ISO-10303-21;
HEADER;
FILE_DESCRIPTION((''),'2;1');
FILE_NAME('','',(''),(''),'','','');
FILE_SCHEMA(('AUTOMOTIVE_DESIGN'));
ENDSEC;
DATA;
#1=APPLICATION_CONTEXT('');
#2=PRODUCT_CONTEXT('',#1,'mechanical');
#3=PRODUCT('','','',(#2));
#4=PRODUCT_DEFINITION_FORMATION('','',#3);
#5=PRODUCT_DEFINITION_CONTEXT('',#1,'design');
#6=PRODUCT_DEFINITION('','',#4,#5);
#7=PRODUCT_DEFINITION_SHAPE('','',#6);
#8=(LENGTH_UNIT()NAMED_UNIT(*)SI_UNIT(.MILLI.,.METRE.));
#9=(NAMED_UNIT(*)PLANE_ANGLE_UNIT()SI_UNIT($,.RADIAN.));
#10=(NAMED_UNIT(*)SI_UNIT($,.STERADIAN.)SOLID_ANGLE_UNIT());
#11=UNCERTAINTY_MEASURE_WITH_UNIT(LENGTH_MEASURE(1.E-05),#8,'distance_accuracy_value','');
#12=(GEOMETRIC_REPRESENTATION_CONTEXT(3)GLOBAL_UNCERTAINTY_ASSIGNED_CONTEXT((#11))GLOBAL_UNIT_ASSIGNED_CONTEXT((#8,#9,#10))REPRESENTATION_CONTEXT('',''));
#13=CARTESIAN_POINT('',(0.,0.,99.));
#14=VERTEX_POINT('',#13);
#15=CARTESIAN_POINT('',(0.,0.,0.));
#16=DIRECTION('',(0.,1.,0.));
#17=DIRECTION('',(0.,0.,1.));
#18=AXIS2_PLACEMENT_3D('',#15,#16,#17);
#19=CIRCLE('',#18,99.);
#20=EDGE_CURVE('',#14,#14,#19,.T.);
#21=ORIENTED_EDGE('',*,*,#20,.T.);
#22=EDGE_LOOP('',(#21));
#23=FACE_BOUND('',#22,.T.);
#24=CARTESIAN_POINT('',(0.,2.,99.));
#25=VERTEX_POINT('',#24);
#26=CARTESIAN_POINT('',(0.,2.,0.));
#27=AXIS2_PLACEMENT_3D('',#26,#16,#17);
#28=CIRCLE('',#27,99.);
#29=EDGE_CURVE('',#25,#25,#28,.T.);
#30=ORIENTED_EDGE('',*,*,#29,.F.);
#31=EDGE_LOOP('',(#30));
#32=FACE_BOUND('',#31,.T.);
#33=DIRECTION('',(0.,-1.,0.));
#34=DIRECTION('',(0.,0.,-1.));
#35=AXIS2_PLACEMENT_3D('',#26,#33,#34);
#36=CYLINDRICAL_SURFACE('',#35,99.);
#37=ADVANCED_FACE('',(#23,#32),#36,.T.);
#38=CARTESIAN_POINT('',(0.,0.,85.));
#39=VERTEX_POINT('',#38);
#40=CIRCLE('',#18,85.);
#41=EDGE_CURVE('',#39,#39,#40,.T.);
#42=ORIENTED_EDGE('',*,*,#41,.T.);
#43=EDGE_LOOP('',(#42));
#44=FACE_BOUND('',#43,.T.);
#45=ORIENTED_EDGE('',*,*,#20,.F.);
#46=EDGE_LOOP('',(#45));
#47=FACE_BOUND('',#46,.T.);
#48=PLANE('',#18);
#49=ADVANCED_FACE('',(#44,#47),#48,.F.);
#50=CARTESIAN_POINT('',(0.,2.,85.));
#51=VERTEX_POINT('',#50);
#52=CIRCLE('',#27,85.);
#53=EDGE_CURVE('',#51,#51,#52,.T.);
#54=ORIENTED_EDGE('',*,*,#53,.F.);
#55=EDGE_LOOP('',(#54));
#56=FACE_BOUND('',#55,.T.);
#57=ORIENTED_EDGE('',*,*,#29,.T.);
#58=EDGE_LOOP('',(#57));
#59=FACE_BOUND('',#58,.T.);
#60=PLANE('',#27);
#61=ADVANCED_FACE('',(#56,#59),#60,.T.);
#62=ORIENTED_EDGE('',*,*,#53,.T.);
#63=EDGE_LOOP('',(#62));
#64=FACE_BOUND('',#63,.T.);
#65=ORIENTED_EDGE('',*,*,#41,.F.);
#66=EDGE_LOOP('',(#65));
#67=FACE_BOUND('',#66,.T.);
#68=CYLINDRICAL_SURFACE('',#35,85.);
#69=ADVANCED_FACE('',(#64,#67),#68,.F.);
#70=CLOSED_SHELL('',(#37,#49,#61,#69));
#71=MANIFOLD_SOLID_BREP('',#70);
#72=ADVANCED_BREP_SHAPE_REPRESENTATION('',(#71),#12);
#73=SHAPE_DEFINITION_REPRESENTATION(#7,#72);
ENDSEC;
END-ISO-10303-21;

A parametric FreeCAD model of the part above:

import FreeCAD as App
import Part
import Sketcher
Q = App.Units.Quantity

doc = App.newDocument("Part")
body = doc.addObject("PartDesign::Body", "Body")

sketch1 = body.newObject("Sketcher::SketchObject", "Sketch")
sketch1.AttachmentSupport = (doc.getObject("XZ_Plane"), [""])
sketch1.MapMode = "FlatFace"
sketch1.addGeometry([
    Part.Circle(App.Vector(0, 0, 0), App.Vector(0, 0, 1), 99),
    Part.Circle(App.Vector(0, 0, 0), App.Vector(0, 0, 1), 85),
], False)
sketch1.addConstraint([
    Sketcher.Constraint("Coincident", 0, 3, -1, 1),
    Sketcher.Constraint("Coincident", 1, 3, -1, 1),
    Sketcher.Constraint("Diameter", 0, Q("198 mm")),
    Sketcher.Constraint("Diameter", 1, Q("170 mm")),
])
pad1 = body.newObject("PartDesign::Pad", "Pad")
pad1.Profile = sketch1
pad1.Length = 2
pad1.Reversed = True

doc.recompute()
